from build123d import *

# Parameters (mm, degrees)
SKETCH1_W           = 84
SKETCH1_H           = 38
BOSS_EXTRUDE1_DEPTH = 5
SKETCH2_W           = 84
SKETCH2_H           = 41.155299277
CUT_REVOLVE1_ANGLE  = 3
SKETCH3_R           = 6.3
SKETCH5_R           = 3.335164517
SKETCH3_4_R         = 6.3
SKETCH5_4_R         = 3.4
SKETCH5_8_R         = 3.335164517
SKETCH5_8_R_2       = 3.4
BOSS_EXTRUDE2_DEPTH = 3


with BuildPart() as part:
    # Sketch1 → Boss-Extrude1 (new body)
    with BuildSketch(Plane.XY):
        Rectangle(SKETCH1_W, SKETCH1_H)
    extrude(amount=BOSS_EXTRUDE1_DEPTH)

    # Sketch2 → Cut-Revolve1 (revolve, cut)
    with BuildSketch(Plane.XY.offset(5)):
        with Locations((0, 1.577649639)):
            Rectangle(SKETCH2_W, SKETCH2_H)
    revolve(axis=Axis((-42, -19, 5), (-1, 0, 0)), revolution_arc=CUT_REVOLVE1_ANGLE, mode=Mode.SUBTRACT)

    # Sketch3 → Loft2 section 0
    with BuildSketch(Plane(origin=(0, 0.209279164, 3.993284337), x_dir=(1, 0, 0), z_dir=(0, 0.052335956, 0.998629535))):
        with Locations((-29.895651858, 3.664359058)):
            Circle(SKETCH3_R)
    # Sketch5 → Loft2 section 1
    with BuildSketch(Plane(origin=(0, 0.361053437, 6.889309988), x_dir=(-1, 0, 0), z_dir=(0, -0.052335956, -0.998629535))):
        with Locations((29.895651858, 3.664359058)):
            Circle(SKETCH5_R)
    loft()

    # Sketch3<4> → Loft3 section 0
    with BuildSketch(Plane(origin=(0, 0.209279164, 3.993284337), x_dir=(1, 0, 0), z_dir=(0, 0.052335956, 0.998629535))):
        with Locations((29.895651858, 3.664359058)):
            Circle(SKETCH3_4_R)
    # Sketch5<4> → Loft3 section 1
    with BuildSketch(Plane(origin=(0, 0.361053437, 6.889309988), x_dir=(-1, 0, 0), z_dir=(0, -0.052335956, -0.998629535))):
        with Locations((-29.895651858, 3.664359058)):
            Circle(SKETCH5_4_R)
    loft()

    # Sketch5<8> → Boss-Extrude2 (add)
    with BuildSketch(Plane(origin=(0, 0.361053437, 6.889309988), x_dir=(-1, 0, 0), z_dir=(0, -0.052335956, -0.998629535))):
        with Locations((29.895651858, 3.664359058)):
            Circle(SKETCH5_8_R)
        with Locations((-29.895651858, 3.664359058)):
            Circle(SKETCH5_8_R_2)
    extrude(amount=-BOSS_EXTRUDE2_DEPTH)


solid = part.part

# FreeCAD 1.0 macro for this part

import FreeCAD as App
import Part
import Sketcher

V = App.Vector
Q = App.Units.Quantity

doc = App.newDocument("Part")
body = doc.addObject("PartDesign::Body", "Body")

# Sketch on XY plane
sketch1 = body.newObject("Sketcher::SketchObject", "Sketch")
sketch1.AttachmentSupport = (doc.getObject("XY_Plane"), [""])
sketch1.MapMode = "FlatFace"
sketch1.addGeometry(Part.LineSegment(V(-42, 19, 0), V(-42, -19, 0)), False)
sketch1.addGeometry(Part.LineSegment(V(-42, -19, 0), V(42, -19, 0)), False)
sketch1.addGeometry(Part.LineSegment(V(42, -19, 0), V(42, 19, 0)), False)
sketch1.addGeometry(Part.LineSegment(V(42, 19, 0), V(-42, 19, 0)), False)
sketch1.addConstraint(Sketcher.Constraint("Coincident", 0, 2, 1, 1))
sketch1.addConstraint(Sketcher.Constraint("Coincident", 1, 2, 2, 1))
sketch1.addConstraint(Sketcher.Constraint("Coincident", 2, 2, 3, 1))
sketch1.addConstraint(Sketcher.Constraint("Coincident", 3, 2, 0, 1))
sketch1.addConstraint(Sketcher.Constraint("Vertical", 0))
sketch1.addConstraint(Sketcher.Constraint("Horizontal", 1))
sketch1.addConstraint(Sketcher.Constraint("Vertical", 2))
sketch1.addConstraint(Sketcher.Constraint("Horizontal", 3))
sketch1.addConstraint(Sketcher.Constraint("Symmetric", 0, 2, 2, 2, -1, 1))
sketch1.addConstraint(Sketcher.Constraint("DistanceX", 1, 1, 1, 2, Q("84 mm")))
sketch1.addConstraint(Sketcher.Constraint("DistanceY", 0, 2, 0, 1, Q("38 mm")))
pad1 = body.newObject("PartDesign::Pad", "Pad")
pad1.Profile = sketch1
pad1.Length = 5

# Sketch on XY plane
sketch2 = body.newObject("Sketcher::SketchObject", "Sketch001")
sketch2.AttachmentSupport = (doc.getObject("XY_Plane"), [""])
sketch2.MapMode = "FlatFace"
sketch2.AttachmentOffset = App.Placement(V(0, 0, 5), App.Rotation())
sketch2.addGeometry(Part.LineSegment(V(-42, 22, 0), V(-42, -19, 0)), False)
sketch2.addGeometry(Part.LineSegment(V(-42, -19, 0), V(42, -19, 0)), False)
sketch2.addGeometry(Part.LineSegment(V(42, -19, 0), V(42, 22, 0)), False)
sketch2.addGeometry(Part.LineSegment(V(42, 22, 0), V(-42, 22, 0)), False)
sketch2.addGeometry(Part.LineSegment(V(42, -19, 0), V(-42, -19, 0)), True)  # axis
sketch2.addConstraint(Sketcher.Constraint("Coincident", 0, 2, 1, 1))
sketch2.addConstraint(Sketcher.Constraint("Coincident", 1, 2, 2, 1))
sketch2.addConstraint(Sketcher.Constraint("Coincident", 2, 2, 3, 1))
sketch2.addConstraint(Sketcher.Constraint("Coincident", 3, 2, 0, 1))
sketch2.addConstraint(Sketcher.Constraint("Vertical", 0))
sketch2.addConstraint(Sketcher.Constraint("Horizontal", 1))
sketch2.addConstraint(Sketcher.Constraint("Vertical", 2))
sketch2.addConstraint(Sketcher.Constraint("Horizontal", 3))
sketch2.addConstraint(Sketcher.Constraint("Horizontal", 4))
sketch2.addConstraint(Sketcher.Constraint("Coincident", 4, 1, 1, 2))
sketch2.addConstraint(Sketcher.Constraint("Vertical", 3, 2, 4, 2))
sketch2.addConstraint(Sketcher.Constraint("DistanceX", 1, 1, 1, 2, Q("84 mm")))
sketch2.addConstraint(Sketcher.Constraint("DistanceX", 0, 2, -1, 1, Q("42 mm")))
sketch2.addConstraint(Sketcher.Constraint("DistanceY", 0, 2, -1, 1, Q("19 mm")))
sketch2.addConstraint(Sketcher.Constraint("DistanceY", 0, 2, 0, 1, Q("41.155299 mm")))
groove = body.newObject("PartDesign::Groove", "Groove")
groove.Profile = sketch2
groove.ReferenceAxis = (sketch2, ["Axis0"])
groove.Angle = 3

# Sketch on an angled plane
sketch3 = body.newObject("Sketcher::SketchObject", "Sketch002")
sketch3.Placement = App.Placement(V(0, 0.209279, 3.993284), App.Rotation(V(1, 0, 0), V(0, 0.998629535, -0.052335956), V(0, 0.052335956, 0.998629535), "ZXY"))
sketch3.addGeometry(Part.Circle(V(-30, 4, 0), V(0, 0, 1), 6), False)
sketch3.addConstraint(Sketcher.Constraint("Diameter", 0, Q("12.6 mm")))
sketch3.addConstraint(Sketcher.Constraint("DistanceX", 0, 3, -1, 1, Q("29.895652 mm")))
sketch3.addConstraint(Sketcher.Constraint("DistanceY", -1, 1, 0, 3, Q("3.664359 mm")))

# Sketch on an angled plane
sketch4 = body.newObject("Sketcher::SketchObject", "Sketch003")
sketch4.Placement = App.Placement(V(0, 0.361053, 6.88931), App.Rotation(V(-1, 0, 0), V(0, 0.998629535, -0.052335956), V(0, -0.052335956, -0.998629535), "ZXY"))
sketch4.addGeometry(Part.Circle(V(29.9, 3.7, 0), V(0, 0, 1), 3.3), False)
sketch4.addConstraint(Sketcher.Constraint("Diameter", 0, Q("6.670329 mm")))
sketch4.addConstraint(Sketcher.Constraint("DistanceX", -1, 1, 0, 3, Q("29.895652 mm")))
sketch4.addConstraint(Sketcher.Constraint("DistanceY", -1, 1, 0, 3, Q("3.664359 mm")))

additiveloft = body.newObject("PartDesign::AdditiveLoft", "AdditiveLoft")
additiveloft.Profile = sketch3
additiveloft.Sections = [sketch4]

# Sketch on an angled plane
sketch5 = body.newObject("Sketcher::SketchObject", "Sketch004")
sketch5.Placement = App.Placement(V(0, 0.209279, 3.993284), App.Rotation(V(1, 0, 0), V(0, 0.998629535, -0.052335956), V(0, 0.052335956, 0.998629535), "ZXY"))
sketch5.addGeometry(Part.Circle(V(30, 4, 0), V(0, 0, 1), 6), False)
sketch5.addConstraint(Sketcher.Constraint("Diameter", 0, Q("12.6 mm")))
sketch5.addConstraint(Sketcher.Constraint("DistanceX", -1, 1, 0, 3, Q("29.895652 mm")))
sketch5.addConstraint(Sketcher.Constraint("DistanceY", -1, 1, 0, 3, Q("3.664359 mm")))

# Sketch on an angled plane
sketch6 = body.newObject("Sketcher::SketchObject", "Sketch005")
sketch6.Placement = App.Placement(V(0, 0.361053, 6.88931), App.Rotation(V(-1, 0, 0), V(0, 0.998629535, -0.052335956), V(0, -0.052335956, -0.998629535), "ZXY"))
sketch6.addGeometry(Part.Circle(V(-29.9, 3.7, 0), V(0, 0, 1), 3.4), False)
sketch6.addConstraint(Sketcher.Constraint("Diameter", 0, Q("6.8 mm")))
sketch6.addConstraint(Sketcher.Constraint("DistanceX", 0, 3, -1, 1, Q("29.895652 mm")))
sketch6.addConstraint(Sketcher.Constraint("DistanceY", -1, 1, 0, 3, Q("3.664359 mm")))

additiveloft2 = body.newObject("PartDesign::AdditiveLoft", "AdditiveLoft001")
additiveloft2.Profile = sketch5
additiveloft2.Sections = [sketch6]

# Sketch on an angled plane
sketch7 = body.newObject("Sketcher::SketchObject", "Sketch006")
sketch7.Placement = App.Placement(V(0, 0.361053, 6.88931), App.Rotation(V(-1, 0, 0), V(0, 0.998629535, -0.052335956), V(0, -0.052335956, -0.998629535), "ZXY"))
sketch7.addGeometry(Part.Circle(V(29.9, 3.7, 0), V(0, 0, 1), 3.3), False)
sketch7.addGeometry(Part.Circle(V(-29.9, 3.7, 0), V(0, 0, 1), 3.4), False)
sketch7.addConstraint(Sketcher.Constraint("Symmetric", 0, 3, 1, 3, -2))
sketch7.addConstraint(Sketcher.Constraint("Diameter", 1, Q("6.8 mm")))
sketch7.addConstraint(Sketcher.Constraint("Diameter", 0, Q("6.670329 mm")))
sketch7.addConstraint(Sketcher.Constraint("DistanceX", -1, 1, 0, 3, Q("29.895652 mm")))
sketch7.addConstraint(Sketcher.Constraint("DistanceY", -1, 1, 0, 3, Q("3.664359 mm")))
pad2 = body.newObject("PartDesign::Pad", "Pad001")
pad2.Profile = sketch7
pad2.Length = 3
pad2.Reversed = True

doc.recompute()
